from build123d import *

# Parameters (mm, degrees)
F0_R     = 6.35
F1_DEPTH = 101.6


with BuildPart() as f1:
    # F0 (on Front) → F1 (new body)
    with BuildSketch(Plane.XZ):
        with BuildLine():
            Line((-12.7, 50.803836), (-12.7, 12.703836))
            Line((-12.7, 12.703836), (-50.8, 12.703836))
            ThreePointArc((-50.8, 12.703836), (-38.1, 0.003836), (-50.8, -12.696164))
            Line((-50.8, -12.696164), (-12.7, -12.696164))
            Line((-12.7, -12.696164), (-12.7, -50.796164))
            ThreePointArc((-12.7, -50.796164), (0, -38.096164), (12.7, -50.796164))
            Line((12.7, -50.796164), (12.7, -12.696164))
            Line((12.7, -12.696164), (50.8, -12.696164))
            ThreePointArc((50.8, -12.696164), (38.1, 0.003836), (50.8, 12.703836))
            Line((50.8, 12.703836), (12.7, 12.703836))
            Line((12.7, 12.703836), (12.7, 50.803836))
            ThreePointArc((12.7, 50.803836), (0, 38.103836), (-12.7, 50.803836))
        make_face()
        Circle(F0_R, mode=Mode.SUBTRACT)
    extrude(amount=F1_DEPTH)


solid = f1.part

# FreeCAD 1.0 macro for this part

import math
import FreeCAD as App
import Part
import Sketcher
from FreeCAD import Vector
Q = App.Units.Quantity

doc = App.newDocument("Part")
body = doc.addObject("PartDesign::Body", "Body")

sketch1 = body.newObject("Sketcher::SketchObject", "Sketch")
sketch1.AttachmentSupport = (doc.getObject("XZ_Plane"), [""])
sketch1.MapMode = "FlatFace"
sketch1.addGeometry([
    Part.LineSegment(Vector(-13, 51, 0), Vector(-13, 13, 0)),
    Part.LineSegment(Vector(-13, 13, 0), Vector(-51, 13, 0)),
    Part.ArcOfCircle(Part.Circle(Vector(-51, 0, 0), Vector(0, 0, 1), 13), math.radians(-90), math.radians(90)),
    Part.LineSegment(Vector(-51, -13, 0), Vector(-13, -13, 0)),
    Part.LineSegment(Vector(-13, -13, 0), Vector(-13, -51, 0)),
    Part.ArcOfCircle(Part.Circle(Vector(0, -51, 0), Vector(0, 0, 1), 13), math.radians(0), math.radians(180)),
    Part.LineSegment(Vector(13, -51, 0), Vector(13, -13, 0)),
    Part.LineSegment(Vector(13, -13, 0), Vector(51, -13, 0)),
    Part.ArcOfCircle(Part.Circle(Vector(51, 0, 0), Vector(0, 0, 1), 13), math.radians(90), math.radians(270)),
    Part.LineSegment(Vector(51, 13, 0), Vector(13, 13, 0)),
    Part.LineSegment(Vector(13, 13, 0), Vector(13, 51, 0)),
    Part.ArcOfCircle(Part.Circle(Vector(0, 51, 0), Vector(0, 0, 1), 13), math.radians(180), math.radians(360)),
    Part.Circle(Vector(0, 0, 0), Vector(0, 0, 1), 6),
], False)
sketch1.addConstraint([
    Sketcher.Constraint("Coincident", 0, 2, 1, 1),
    Sketcher.Constraint("Tangent", 1, 2, 2, 2),
    Sketcher.Constraint("Tangent", 2, 1, 3, 1),
    Sketcher.Constraint("Coincident", 3, 2, 4, 1),
    Sketcher.Constraint("Tangent", 4, 2, 5, 2),
    Sketcher.Constraint("Tangent", 5, 1, 6, 1),
    Sketcher.Constraint("Coincident", 6, 2, 7, 1),
    Sketcher.Constraint("Tangent", 7, 2, 8, 2),
    Sketcher.Constraint("Tangent", 8, 1, 9, 1),
    Sketcher.Constraint("Coincident", 9, 2, 10, 1),
    Sketcher.Constraint("Tangent", 10, 2, 11, 2),
    Sketcher.Constraint("Tangent", 11, 1, 0, 1),
    Sketcher.Constraint("Vertical", 0),
    Sketcher.Constraint("Horizontal", 1),
    Sketcher.Constraint("Horizontal", 3),
    Sketcher.Constraint("Vertical", 4),
    Sketcher.Constraint("Vertical", 6),
    Sketcher.Constraint("Horizontal", 7),
    Sketcher.Constraint("Horizontal", 9),
    Sketcher.Constraint("Vertical", 10),
    Sketcher.Constraint("Coincident", 12, 3, -1, 1),
    Sketcher.Constraint("Equal", 2, 5),
    Sketcher.Constraint("Equal", 5, 8),
    Sketcher.Constraint("Equal", 8, 11),
    Sketcher.Constraint("Symmetric", 2, 3, 8, 3, -2),
    Sketcher.Constraint("PointOnObject", 5, 3, -2),
    Sketcher.Constraint("PointOnObject", 11, 3, -2),
    Sketcher.Constraint("Equal", 9, 0),
    Sketcher.Constraint("Equal", 0, 4),
    Sketcher.Constraint("Diameter", 12, Q("0.5 in")),
    Sketcher.Constraint("Radius", 2, Q("0.5 in")),
    Sketcher.Constraint("DistanceX", 1, 2, 1, 1, Q("1.5 in")),
    Sketcher.Constraint("DistanceY", -1, 1, 2, 3, Q("0.003836 mm")),
])
pad1 = body.newObject("PartDesign::Pad", "Pad")
pad1.Profile = sketch1
pad1.Length = Q("4 in")

doc.recompute()
